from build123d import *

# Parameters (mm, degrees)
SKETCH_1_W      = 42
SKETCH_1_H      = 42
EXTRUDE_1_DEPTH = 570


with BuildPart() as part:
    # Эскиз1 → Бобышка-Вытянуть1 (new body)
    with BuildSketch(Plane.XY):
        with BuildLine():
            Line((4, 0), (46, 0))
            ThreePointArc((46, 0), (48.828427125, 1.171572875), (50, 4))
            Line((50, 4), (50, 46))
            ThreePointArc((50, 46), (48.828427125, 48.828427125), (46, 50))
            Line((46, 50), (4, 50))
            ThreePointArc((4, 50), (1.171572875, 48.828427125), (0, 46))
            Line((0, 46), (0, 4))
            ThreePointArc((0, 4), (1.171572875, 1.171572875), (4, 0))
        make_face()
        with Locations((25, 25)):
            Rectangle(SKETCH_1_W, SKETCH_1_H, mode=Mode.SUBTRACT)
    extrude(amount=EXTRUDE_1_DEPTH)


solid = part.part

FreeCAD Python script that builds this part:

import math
import FreeCAD as App
import Part
import Sketcher
from FreeCAD import Vector
Q = App.Units.Quantity

doc = App.newDocument("Part")
body = doc.addObject("PartDesign::Body", "Body")

sketch1 = body.newObject("Sketcher::SketchObject", "Sketch")
sketch1.AttachmentSupport = (doc.getObject("XY_Plane"), [""])
sketch1.MapMode = "FlatFace"
sketch1.addGeometry(Part.LineSegment(Vector(4, 0, 0), Vector(46, 0, 0)), False)
sketch1.addGeometry(Part.ArcOfCircle(Part.Circle(Vector(46, 4, 0), Vector(0, 0, 1), 4), math.radians(-90), math.radians(0)), False)
sketch1.addGeometry(Part.LineSegment(Vector(50, 4, 0), Vector(50, 46, 0)), False)
sketch1.addGeometry(Part.ArcOfCircle(Part.Circle(Vector(46, 46, 0), Vector(0, 0, 1), 4), math.radians(0), math.radians(90)), False)
sketch1.addGeometry(Part.LineSegment(Vector(46, 50, 0), Vector(4, 50, 0)), False)
sketch1.addGeometry(Part.ArcOfCircle(Part.Circle(Vector(4, 46, 0), Vector(0, 0, 1), 4), math.radians(90), math.radians(180)), False)
sketch1.addGeometry(Part.LineSegment(Vector(0, 46, 0), Vector(0, 4, 0)), False)
sketch1.addGeometry(Part.ArcOfCircle(Part.Circle(Vector(4, 4, 0), Vector(0, 0, 1), 4), math.radians(180), math.radians(270)), False)
sketch1.addGeometry(Part.LineSegment(Vector(46, 4, 0), Vector(4, 4, 0)), False)
sketch1.addGeometry(Part.LineSegment(Vector(4, 4, 0), Vector(4, 46, 0)), False)
sketch1.addGeometry(Part.LineSegment(Vector(4, 46, 0), Vector(46, 46, 0)), False)
sketch1.addGeometry(Part.LineSegment(Vector(46, 46, 0), Vector(46, 4, 0)), False)
sketch1.addConstraint(Sketcher.Constraint("Tangent", 0, 2, 1, 1))
sketch1.addConstraint(Sketcher.Constraint("Tangent", 1, 2, 2, 1))
sketch1.addConstraint(Sketcher.Constraint("Tangent", 2, 2, 3, 1))
sketch1.addConstraint(Sketcher.Constraint("Tangent", 3, 2, 4, 1))
sketch1.addConstraint(Sketcher.Constraint("Tangent", 4, 2, 5, 1))
sketch1.addConstraint(Sketcher.Constraint("Tangent", 5, 2, 6, 1))
sketch1.addConstraint(Sketcher.Constraint("Tangent", 6, 2, 7, 1))
sketch1.addConstraint(Sketcher.Constraint("Tangent", 7, 2, 0, 1))
sketch1.addConstraint(Sketcher.Constraint("Coincident", 8, 2, 9, 1))
sketch1.addConstraint(Sketcher.Constraint("Coincident", 9, 2, 10, 1))
sketch1.addConstraint(Sketcher.Constraint("Coincident", 10, 2, 11, 1))
sketch1.addConstraint(Sketcher.Constraint("Coincident", 11, 2, 8, 1))
sketch1.addConstraint(Sketcher.Constraint("Horizontal", 0))
sketch1.addConstraint(Sketcher.Constraint("Vertical", 2))
sketch1.addConstraint(Sketcher.Constraint("Horizontal", 4))
sketch1.addConstraint(Sketcher.Constraint("Vertical", 6))
sketch1.addConstraint(Sketcher.Constraint("Horizontal", 8))
sketch1.addConstraint(Sketcher.Constraint("Vertical", 9))
sketch1.addConstraint(Sketcher.Constraint("Horizontal", 10))
sketch1.addConstraint(Sketcher.Constraint("Vertical", 11))
sketch1.addConstraint(Sketcher.Constraint("Coincident", 8, 2, 7, 3))
sketch1.addConstraint(Sketcher.Constraint("Coincident", 9, 2, 5, 3))
sketch1.addConstraint(Sketcher.Constraint("Coincident", 10, 2, 3, 3))
sketch1.addConstraint(Sketcher.Constraint("Equal", 1, 3))
sketch1.addConstraint(Sketcher.Constraint("PointOnObject", 0, 2, -1))
sketch1.addConstraint(Sketcher.Constraint("PointOnObject", 5, 2, -2))
sketch1.addConstraint(Sketcher.Constraint("Equal", 10, 2))
sketch1.addConstraint(Sketcher.Constraint("Radius", 1, Q("4 mm")))
sketch1.addConstraint(Sketcher.Constraint("DistanceX", 0, 1, 0, 2, Q("42 mm")))
pad1 = body.newObject("PartDesign::Pad", "Pad")
pad1.Profile = sketch1
pad1.Length = 570

doc.recompute()
